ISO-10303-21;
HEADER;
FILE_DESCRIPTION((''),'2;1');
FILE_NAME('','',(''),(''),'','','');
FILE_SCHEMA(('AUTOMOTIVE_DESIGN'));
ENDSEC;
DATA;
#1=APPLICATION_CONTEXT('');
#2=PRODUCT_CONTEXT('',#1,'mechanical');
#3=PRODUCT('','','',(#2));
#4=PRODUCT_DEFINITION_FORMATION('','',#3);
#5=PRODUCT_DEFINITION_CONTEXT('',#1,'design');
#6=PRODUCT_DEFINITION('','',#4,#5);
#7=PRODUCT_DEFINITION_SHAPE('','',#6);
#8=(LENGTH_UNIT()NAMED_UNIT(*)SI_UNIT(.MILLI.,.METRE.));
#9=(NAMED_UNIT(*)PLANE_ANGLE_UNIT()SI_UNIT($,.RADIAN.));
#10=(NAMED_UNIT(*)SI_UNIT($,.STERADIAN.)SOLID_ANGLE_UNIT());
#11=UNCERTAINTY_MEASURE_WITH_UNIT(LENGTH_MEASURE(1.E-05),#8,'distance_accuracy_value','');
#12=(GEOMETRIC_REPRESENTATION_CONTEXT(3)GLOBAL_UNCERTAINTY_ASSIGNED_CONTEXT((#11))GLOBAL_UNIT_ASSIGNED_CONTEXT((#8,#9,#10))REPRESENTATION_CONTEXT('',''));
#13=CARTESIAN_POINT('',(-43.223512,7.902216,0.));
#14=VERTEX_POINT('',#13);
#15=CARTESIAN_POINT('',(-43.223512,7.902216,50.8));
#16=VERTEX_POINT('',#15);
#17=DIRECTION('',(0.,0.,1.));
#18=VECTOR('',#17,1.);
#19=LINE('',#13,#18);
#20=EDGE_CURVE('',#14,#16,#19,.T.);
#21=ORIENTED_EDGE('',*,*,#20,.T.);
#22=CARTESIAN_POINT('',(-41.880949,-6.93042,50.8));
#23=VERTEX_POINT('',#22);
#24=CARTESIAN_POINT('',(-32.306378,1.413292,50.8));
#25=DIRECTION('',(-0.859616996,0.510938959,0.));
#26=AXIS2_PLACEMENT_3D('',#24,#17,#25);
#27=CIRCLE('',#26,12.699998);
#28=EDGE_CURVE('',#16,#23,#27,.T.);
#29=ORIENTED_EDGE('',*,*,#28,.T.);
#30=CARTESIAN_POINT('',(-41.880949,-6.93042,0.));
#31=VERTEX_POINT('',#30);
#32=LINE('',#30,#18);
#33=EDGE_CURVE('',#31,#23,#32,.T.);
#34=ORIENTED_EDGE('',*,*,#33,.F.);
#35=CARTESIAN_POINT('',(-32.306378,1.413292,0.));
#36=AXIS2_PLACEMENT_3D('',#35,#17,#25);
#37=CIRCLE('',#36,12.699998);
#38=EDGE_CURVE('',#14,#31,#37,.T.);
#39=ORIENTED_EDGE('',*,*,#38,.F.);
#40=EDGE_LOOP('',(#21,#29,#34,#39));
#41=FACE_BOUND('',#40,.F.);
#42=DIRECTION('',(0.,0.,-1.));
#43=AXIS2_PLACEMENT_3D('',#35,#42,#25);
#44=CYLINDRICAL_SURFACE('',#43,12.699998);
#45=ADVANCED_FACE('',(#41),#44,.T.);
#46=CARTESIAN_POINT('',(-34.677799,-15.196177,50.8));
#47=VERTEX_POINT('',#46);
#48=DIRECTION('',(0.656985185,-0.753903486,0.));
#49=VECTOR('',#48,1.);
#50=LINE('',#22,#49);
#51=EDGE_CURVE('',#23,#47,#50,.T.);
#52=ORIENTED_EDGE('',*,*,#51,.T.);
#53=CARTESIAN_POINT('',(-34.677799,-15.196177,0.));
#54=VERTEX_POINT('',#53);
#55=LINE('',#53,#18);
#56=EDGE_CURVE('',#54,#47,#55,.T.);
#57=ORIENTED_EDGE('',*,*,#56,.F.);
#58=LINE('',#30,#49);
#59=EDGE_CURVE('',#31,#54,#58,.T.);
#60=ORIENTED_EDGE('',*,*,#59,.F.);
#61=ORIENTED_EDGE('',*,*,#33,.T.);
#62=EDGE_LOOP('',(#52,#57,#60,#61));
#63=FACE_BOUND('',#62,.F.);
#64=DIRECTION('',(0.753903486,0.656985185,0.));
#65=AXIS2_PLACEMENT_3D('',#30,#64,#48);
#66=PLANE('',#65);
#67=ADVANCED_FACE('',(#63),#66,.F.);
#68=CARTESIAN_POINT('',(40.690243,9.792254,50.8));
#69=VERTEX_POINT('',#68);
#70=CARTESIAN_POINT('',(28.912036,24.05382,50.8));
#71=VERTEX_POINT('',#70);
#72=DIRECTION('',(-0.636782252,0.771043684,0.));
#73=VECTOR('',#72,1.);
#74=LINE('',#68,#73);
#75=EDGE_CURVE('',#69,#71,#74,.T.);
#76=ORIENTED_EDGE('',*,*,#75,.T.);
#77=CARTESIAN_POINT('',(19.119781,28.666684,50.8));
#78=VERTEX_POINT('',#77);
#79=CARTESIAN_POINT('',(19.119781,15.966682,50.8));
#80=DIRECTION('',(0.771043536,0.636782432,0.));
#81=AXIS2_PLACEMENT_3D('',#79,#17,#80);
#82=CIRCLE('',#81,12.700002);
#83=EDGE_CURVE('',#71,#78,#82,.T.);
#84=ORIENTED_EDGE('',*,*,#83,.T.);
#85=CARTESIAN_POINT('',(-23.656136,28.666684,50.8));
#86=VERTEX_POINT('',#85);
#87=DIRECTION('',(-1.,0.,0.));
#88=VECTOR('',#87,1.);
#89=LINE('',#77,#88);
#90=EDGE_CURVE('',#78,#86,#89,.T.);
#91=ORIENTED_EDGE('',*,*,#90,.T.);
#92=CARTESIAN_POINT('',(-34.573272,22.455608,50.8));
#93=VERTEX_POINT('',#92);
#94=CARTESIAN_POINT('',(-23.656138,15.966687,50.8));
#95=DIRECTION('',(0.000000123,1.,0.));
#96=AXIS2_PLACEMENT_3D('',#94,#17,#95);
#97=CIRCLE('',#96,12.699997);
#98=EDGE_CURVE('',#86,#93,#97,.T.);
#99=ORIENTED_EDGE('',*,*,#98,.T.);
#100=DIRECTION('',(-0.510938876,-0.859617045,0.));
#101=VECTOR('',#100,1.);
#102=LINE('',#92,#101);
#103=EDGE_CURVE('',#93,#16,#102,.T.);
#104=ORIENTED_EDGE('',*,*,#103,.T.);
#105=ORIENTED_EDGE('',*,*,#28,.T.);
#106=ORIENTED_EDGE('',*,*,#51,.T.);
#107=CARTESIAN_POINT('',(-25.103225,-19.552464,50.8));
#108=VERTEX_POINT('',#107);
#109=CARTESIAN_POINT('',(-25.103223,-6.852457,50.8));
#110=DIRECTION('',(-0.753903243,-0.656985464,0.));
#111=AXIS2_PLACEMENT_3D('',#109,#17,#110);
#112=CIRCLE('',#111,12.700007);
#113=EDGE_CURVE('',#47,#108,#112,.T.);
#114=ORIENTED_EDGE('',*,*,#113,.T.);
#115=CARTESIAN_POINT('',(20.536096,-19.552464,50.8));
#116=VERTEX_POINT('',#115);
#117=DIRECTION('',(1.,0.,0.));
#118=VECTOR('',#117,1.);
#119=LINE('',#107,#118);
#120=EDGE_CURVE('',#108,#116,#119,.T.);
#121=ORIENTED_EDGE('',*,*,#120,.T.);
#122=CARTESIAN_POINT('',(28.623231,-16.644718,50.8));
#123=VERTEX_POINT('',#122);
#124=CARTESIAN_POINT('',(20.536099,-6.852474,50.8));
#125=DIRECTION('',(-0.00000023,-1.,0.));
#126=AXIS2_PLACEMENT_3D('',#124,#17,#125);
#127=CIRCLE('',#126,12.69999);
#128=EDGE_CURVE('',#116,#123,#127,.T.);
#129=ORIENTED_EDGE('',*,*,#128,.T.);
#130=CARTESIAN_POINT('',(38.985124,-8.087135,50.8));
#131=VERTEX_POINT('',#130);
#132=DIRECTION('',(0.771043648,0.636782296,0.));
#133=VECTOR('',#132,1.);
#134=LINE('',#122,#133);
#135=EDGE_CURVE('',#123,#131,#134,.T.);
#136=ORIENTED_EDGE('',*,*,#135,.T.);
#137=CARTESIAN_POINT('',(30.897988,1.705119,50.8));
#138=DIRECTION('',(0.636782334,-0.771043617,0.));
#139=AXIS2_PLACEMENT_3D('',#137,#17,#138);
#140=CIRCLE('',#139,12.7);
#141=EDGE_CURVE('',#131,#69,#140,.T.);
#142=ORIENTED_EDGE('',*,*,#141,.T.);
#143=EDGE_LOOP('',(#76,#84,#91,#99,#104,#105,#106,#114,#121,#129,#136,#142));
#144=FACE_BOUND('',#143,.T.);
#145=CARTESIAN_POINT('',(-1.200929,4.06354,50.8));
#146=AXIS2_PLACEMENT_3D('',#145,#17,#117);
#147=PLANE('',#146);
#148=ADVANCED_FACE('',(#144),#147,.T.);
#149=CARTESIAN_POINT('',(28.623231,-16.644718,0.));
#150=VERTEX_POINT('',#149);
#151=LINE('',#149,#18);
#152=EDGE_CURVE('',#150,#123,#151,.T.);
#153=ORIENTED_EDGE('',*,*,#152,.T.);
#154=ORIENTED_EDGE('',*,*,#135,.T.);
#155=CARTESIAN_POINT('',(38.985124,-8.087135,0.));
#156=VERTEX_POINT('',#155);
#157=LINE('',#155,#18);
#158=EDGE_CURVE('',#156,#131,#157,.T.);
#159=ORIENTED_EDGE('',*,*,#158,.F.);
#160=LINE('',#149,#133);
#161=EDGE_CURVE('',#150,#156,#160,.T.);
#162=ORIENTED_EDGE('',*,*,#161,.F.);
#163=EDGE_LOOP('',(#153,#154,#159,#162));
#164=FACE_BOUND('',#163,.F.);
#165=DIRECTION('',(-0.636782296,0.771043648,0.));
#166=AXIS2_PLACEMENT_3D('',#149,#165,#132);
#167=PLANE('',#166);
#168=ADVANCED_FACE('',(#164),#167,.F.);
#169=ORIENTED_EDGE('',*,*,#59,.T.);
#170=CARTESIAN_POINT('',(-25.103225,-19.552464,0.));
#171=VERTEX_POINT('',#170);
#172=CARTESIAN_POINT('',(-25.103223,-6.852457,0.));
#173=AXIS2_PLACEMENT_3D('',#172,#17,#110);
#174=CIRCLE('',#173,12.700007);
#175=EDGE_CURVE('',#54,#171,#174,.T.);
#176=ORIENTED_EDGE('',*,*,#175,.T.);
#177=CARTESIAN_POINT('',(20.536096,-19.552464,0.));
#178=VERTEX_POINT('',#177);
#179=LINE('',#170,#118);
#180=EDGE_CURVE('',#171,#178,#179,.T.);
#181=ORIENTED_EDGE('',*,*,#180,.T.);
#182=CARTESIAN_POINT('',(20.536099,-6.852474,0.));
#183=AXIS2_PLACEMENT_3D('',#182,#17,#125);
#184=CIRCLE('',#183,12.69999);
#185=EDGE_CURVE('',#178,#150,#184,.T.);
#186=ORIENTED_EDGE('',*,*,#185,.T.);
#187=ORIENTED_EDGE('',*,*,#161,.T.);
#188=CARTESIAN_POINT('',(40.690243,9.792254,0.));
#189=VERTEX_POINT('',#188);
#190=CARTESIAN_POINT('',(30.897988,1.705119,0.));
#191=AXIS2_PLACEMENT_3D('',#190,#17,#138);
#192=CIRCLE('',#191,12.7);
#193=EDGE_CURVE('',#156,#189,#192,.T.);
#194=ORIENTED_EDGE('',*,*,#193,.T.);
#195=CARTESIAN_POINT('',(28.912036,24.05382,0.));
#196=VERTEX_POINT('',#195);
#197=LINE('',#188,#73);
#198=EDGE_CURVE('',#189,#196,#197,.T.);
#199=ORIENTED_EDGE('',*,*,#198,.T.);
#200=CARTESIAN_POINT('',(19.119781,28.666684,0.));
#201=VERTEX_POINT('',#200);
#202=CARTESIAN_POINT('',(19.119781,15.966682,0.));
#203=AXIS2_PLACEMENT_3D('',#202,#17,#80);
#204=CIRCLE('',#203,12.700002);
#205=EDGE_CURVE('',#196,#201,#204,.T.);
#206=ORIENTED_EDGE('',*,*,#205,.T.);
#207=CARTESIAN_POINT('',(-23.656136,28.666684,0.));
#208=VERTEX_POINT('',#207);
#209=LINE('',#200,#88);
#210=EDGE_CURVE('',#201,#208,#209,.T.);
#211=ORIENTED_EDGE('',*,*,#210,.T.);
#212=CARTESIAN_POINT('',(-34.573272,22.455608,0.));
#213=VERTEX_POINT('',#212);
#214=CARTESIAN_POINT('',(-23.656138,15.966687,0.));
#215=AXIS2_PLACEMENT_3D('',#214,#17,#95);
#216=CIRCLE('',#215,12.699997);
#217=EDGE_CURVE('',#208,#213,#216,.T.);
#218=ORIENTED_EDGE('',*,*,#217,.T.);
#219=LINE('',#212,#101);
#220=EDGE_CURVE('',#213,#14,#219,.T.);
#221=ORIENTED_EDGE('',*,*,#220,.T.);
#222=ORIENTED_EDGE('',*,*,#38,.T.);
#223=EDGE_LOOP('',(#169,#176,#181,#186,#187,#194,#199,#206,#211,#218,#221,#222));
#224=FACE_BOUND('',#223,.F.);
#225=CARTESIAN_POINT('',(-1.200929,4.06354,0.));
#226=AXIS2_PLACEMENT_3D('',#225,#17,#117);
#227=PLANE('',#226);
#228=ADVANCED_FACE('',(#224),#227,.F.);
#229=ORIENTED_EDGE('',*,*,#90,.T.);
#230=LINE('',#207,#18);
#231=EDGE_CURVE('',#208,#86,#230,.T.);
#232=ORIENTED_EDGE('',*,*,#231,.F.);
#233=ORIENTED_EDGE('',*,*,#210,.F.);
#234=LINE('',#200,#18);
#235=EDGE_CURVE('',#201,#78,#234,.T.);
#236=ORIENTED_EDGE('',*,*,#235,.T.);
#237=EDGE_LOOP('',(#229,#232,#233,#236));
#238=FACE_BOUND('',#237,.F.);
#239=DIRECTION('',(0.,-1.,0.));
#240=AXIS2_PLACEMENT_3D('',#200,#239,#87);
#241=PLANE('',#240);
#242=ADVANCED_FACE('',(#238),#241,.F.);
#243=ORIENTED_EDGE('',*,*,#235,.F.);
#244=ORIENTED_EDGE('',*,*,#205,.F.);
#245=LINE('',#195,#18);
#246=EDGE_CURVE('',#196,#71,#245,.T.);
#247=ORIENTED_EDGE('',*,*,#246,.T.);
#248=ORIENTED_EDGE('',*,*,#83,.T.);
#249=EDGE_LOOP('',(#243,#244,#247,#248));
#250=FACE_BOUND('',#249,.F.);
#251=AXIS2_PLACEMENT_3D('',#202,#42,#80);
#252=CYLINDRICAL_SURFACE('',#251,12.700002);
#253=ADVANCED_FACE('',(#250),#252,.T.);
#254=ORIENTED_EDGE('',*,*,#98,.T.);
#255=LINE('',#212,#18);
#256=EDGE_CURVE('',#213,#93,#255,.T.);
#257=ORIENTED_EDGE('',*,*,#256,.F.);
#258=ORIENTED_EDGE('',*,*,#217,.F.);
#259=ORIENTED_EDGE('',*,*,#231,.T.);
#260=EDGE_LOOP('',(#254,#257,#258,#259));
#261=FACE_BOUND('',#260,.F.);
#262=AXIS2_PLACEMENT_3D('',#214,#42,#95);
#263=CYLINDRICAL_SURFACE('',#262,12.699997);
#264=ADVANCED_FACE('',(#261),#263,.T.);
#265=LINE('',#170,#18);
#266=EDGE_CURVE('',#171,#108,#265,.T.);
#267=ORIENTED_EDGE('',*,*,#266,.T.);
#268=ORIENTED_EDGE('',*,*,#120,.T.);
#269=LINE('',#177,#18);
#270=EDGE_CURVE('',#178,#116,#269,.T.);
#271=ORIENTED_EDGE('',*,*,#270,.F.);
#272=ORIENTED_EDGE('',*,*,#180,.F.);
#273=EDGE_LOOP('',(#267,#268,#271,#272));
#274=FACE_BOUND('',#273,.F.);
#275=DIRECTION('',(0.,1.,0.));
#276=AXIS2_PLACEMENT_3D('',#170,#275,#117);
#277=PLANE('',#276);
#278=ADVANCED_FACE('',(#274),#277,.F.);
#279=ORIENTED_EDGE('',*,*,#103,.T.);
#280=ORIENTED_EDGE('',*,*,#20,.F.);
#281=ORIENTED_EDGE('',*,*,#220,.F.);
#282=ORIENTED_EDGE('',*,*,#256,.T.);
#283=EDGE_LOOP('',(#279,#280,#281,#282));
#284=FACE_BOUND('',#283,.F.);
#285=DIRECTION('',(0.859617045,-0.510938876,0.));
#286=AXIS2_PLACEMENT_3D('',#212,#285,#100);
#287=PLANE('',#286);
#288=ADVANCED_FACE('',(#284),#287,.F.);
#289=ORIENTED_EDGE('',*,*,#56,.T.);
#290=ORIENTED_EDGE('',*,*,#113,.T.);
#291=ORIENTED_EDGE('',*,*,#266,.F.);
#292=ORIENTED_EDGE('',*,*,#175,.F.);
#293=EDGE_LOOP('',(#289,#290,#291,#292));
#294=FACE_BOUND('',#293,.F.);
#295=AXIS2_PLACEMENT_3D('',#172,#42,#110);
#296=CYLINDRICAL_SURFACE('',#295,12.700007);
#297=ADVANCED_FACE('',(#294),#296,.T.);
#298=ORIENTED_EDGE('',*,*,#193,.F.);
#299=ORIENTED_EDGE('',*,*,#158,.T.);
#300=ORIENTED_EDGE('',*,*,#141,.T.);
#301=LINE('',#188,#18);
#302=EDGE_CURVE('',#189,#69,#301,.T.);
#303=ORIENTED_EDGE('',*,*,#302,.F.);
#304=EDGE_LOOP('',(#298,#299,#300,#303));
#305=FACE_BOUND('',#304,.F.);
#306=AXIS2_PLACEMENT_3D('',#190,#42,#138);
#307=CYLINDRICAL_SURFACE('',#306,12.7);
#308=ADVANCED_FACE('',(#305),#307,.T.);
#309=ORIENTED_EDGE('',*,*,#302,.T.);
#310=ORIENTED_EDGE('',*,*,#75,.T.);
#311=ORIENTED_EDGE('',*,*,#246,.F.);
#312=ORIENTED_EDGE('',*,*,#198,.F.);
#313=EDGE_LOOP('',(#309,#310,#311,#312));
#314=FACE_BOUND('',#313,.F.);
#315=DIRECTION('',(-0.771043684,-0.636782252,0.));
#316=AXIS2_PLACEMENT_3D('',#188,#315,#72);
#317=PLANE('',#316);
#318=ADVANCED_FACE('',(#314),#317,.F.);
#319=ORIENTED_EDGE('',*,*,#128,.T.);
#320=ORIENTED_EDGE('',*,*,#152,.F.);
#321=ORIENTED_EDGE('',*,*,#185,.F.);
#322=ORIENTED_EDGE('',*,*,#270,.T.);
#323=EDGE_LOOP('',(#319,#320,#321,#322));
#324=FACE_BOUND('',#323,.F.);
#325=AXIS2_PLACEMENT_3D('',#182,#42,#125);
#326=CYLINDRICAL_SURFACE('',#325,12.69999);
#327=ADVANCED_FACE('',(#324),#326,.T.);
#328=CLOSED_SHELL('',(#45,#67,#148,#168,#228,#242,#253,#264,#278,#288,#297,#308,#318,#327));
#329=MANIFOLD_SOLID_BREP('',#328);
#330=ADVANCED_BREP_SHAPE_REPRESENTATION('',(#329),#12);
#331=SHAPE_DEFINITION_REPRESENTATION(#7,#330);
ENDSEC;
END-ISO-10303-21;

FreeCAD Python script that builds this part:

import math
import FreeCAD as App
import Part
import Sketcher
Q = App.Units.Quantity

doc = App.newDocument("Part")
body = doc.addObject("PartDesign::Body", "Body")

# Sketch on XY plane
sketch1 = body.newObject("Sketcher::SketchObject", "Sketch")
sketch1.AttachmentSupport = (doc.getObject("XY_Plane"), [""])
sketch1.MapMode = "FlatFace"
sketch1.addGeometry([
    Part.LineSegment(App.Vector(-34.573272, 22.455608, 0), App.Vector(-43.223512, 7.902216, 0)),  # 0
    Part.ArcOfCircle(Part.Circle(App.Vector(-32.306378, 1.413292, 0), App.Vector(0, 0, 1), 12.699998), math.radians(149.273606), math.radians(221.07036)),  # 1
    Part.LineSegment(App.Vector(-41.880949, -6.93042, 0), App.Vector(-34.677799, -15.196177, 0)),  # 2
    Part.ArcOfCircle(Part.Circle(App.Vector(-25.103223, -6.852457, 0), App.Vector(0, 0, 1), 12.700007), math.radians(-138.92963), math.radians(-90.000011)),  # 3
    Part.LineSegment(App.Vector(-25.103225, -19.552464, 0), App.Vector(20.536096, -19.552464, 0)),  # 4
    Part.ArcOfCircle(Part.Circle(App.Vector(20.536099, -6.852474, 0), App.Vector(0, 0, 1), 12.69999), math.radians(-90.000013), math.radians(-50.447682)),  # 5
    Part.LineSegment(App.Vector(28.623231, -16.644718, 0), App.Vector(38.985124, -8.087135, 0)),  # 6
    Part.ArcOfCircle(Part.Circle(App.Vector(30.897988, 1.705119, 0), App.Vector(0, 0, 1), 12.7), math.radians(-50.447697), math.radians(39.552298)),  # 7
    Part.LineSegment(App.Vector(40.690243, 9.792254, 0), App.Vector(28.912036, 24.05382, 0)),  # 8
    Part.ArcOfCircle(Part.Circle(App.Vector(19.119781, 15.966682, 0), App.Vector(0, 0, 1), 12.700002), math.radians(39.55231), math.radians(90.000001)),  # 9
    Part.LineSegment(App.Vector(19.119781, 28.666684, 0), App.Vector(-23.656136, 28.666684, 0)),  # 10
    Part.ArcOfCircle(Part.Circle(App.Vector(-23.656138, 15.966687, 0), App.Vector(0, 0, 1), 12.699997), math.radians(89.999993), math.radians(149.273619)),  # 11
], False)
sketch1.addConstraint([
    Sketcher.Constraint("Tangent", 0, 2, 1, 1),
    Sketcher.Constraint("Tangent", 1, 2, 2, 1),
    Sketcher.Constraint("Tangent", 2, 2, 3, 1),
    Sketcher.Constraint("Tangent", 3, 2, 4, 1),
    Sketcher.Constraint("Tangent", 4, 2, 5, 1),
    Sketcher.Constraint("Tangent", 5, 2, 6, 1),
    Sketcher.Constraint("Tangent", 6, 2, 7, 1),
    Sketcher.Constraint("Tangent", 7, 2, 8, 1),
    Sketcher.Constraint("Tangent", 8, 2, 9, 1),
    Sketcher.Constraint("Tangent", 9, 2, 10, 1),
    Sketcher.Constraint("Tangent", 10, 2, 11, 1),
    Sketcher.Constraint("Tangent", 11, 2, 0, 1),
    Sketcher.Constraint("Horizontal", 4),
    Sketcher.Constraint("Horizontal", 10),
    Sketcher.Constraint("Equal", 1, 11),
    Sketcher.Constraint("Perpendicular", 6, 8),
    Sketcher.Constraint("Radius", 1, Q("0.4999999 in")),
    Sketcher.Constraint("Radius", 7, Q("0.5 in")),
    Sketcher.Constraint("Radius", 9, Q("0.5000001 in")),
    Sketcher.Constraint("Radius", 5, Q("12.69999 mm")),
    Sketcher.Constraint("Radius", 3, Q("12.700007 mm")),
    Sketcher.Constraint("DistanceX", 9, 3, 6, 2, Q("0.7821001 in")),
    Sketcher.Constraint("DistanceX", 4, 1, 4, 2, Q("45.639321 mm")),
    Sketcher.Constraint("DistanceX", -1, 1, 5, 3, Q("20.536099 mm")),
    Sketcher.Constraint("DistanceX", 2, 2, -1, 1, Q("34.677799 mm")),
    Sketcher.Constraint("DistanceY", 5, 2, 9, 3, Q("32.6114 mm")),
    Sketcher.Constraint("DistanceY", 7, 3, 8, 2, Q("22.348701 mm")),
    Sketcher.Constraint("DistanceX", 10, 2, 10, 1, Q("42.775917 mm")),
    Sketcher.Constraint("DistanceY", -1, 1, 7, 3, Q("1.705119 mm")),
    Sketcher.Constraint("DistanceX", 1, 2, -1, 1, Q("41.880949 mm")),
])
pad1 = body.newObject("PartDesign::Pad", "Pad")
pad1.Profile = sketch1
pad1.Length = Q("2 in")

doc.recompute()
